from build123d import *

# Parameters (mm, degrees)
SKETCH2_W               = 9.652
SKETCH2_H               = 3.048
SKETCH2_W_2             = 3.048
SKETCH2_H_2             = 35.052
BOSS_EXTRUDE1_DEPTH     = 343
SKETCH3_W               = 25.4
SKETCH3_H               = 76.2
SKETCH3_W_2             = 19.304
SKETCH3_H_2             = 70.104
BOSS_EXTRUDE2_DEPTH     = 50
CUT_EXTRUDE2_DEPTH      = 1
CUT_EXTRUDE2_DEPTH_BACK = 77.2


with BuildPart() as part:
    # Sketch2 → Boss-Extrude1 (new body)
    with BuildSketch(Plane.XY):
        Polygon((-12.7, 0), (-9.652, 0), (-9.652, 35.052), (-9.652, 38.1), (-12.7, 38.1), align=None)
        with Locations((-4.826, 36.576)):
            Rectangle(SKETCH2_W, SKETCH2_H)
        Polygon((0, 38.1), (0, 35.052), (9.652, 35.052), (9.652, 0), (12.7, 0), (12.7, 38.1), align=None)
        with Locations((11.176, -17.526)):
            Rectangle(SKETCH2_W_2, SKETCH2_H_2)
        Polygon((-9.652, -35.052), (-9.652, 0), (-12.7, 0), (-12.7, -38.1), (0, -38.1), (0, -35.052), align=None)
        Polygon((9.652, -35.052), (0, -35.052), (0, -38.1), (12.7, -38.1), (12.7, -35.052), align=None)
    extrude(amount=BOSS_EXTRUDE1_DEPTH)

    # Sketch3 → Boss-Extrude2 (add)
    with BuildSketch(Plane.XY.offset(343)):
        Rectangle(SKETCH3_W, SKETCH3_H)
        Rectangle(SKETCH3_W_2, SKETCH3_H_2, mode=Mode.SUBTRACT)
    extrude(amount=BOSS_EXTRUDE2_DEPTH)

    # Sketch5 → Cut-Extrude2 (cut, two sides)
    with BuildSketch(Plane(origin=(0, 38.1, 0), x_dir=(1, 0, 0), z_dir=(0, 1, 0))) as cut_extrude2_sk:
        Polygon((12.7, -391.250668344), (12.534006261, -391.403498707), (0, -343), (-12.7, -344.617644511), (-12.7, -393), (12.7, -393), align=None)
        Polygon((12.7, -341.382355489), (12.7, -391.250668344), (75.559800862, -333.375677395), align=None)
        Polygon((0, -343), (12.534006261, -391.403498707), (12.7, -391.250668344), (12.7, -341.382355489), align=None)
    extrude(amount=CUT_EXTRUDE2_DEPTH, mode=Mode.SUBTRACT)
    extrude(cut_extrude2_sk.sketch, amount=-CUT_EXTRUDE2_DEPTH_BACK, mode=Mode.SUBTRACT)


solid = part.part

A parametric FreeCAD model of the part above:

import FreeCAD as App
import Part
import Sketcher
from FreeCAD import Vector
Q = App.Units.Quantity

doc = App.newDocument("Part")
body = doc.addObject("PartDesign::Body", "Body")

sketch1 = doc.addObject("Sketcher::SketchObject", "Sketch")
body.addObject(sketch1)
sketch1.AttachmentSupport = (doc.XY_Plane, [""])
sketch1.MapMode = "FlatFace"
sketch1.addGeometry([
    Part.LineSegment(Vector(13, 38, 0), Vector(-13, 38, 0)),
    Part.LineSegment(Vector(-13, 38, 0), Vector(-13, -38, 0)),
    Part.LineSegment(Vector(-13, -38, 0), Vector(13, -38, 0)),
    Part.LineSegment(Vector(13, -38, 0), Vector(13, 38, 0)),
    Part.LineSegment(Vector(-10, 35, 0), Vector(10, 35, 0)),
    Part.LineSegment(Vector(10, 35, 0), Vector(10, -35, 0)),
    Part.LineSegment(Vector(10, -35, 0), Vector(-10, -35, 0)),
    Part.LineSegment(Vector(-10, -35, 0), Vector(-10, 35, 0)),
], False)
sketch1.addConstraint([
    Sketcher.Constraint("Coincident", 0, 2, 1, 1),
    Sketcher.Constraint("Coincident", 1, 2, 2, 1),
    Sketcher.Constraint("Coincident", 2, 2, 3, 1),
    Sketcher.Constraint("Coincident", 3, 2, 0, 1),
    Sketcher.Constraint("Coincident", 4, 2, 5, 1),
    Sketcher.Constraint("Coincident", 5, 2, 6, 1),
    Sketcher.Constraint("Coincident", 6, 2, 7, 1),
    Sketcher.Constraint("Coincident", 7, 2, 4, 1),
    Sketcher.Constraint("Horizontal", 0),
    Sketcher.Constraint("Vertical", 1),
    Sketcher.Constraint("Horizontal", 2),
    Sketcher.Constraint("Vertical", 3),
    Sketcher.Constraint("Horizontal", 4),
    Sketcher.Constraint("Vertical", 5),
    Sketcher.Constraint("Horizontal", 6),
    Sketcher.Constraint("Vertical", 7),
    Sketcher.Constraint("Symmetric", 0, 2, 2, 2, -1, 1),
    Sketcher.Constraint("Symmetric", 4, 2, 6, 2, -1, 1),
    Sketcher.Constraint("DistanceX", 0, 2, 0, 1, Q("1 in")),
    Sketcher.Constraint("DistanceY", 1, 2, 1, 1, Q("3 in")),
    Sketcher.Constraint("DistanceX", 4, 1, 4, 2, Q("0.76 in")),
    Sketcher.Constraint("DistanceY", 5, 2, 5, 1, Q("2.76 in")),
])
pad1 = doc.addObject("PartDesign::Pad", "Pad")
body.addObject(pad1)
pad1.Profile = sketch1
pad1.Length = 343

sketch2 = doc.addObject("Sketcher::SketchObject", "Sketch001")
body.addObject(sketch2)
sketch2.AttachmentSupport = (doc.XY_Plane, [""])
sketch2.MapMode = "FlatFace"
sketch2.AttachmentOffset = App.Placement(Vector(0, 0, 343), App.Rotation())
sketch2.addGeometry([
    Part.LineSegment(Vector(-13, 38, 0), Vector(-13, -38, 0)),
    Part.LineSegment(Vector(-13, -38, 0), Vector(13, -38, 0)),
    Part.LineSegment(Vector(13, -38, 0), Vector(13, 38, 0)),
    Part.LineSegment(Vector(13, 38, 0), Vector(-13, 38, 0)),
    Part.LineSegment(Vector(10, -35, 0), Vector(-10, -35, 0)),
    Part.LineSegment(Vector(-10, -35, 0), Vector(-10, 35, 0)),
    Part.LineSegment(Vector(-10, 35, 0), Vector(10, 35, 0)),
    Part.LineSegment(Vector(10, 35, 0), Vector(10, -35, 0)),
], False)
sketch2.addConstraint([
    Sketcher.Constraint("Coincident", 0, 2, 1, 1),
    Sketcher.Constraint("Coincident", 1, 2, 2, 1),
    Sketcher.Constraint("Coincident", 2, 2, 3, 1),
    Sketcher.Constraint("Coincident", 3, 2, 0, 1),
    Sketcher.Constraint("Coincident", 4, 2, 5, 1),
    Sketcher.Constraint("Coincident", 5, 2, 6, 1),
    Sketcher.Constraint("Coincident", 6, 2, 7, 1),
    Sketcher.Constraint("Coincident", 7, 2, 4, 1),
    Sketcher.Constraint("Vertical", 0),
    Sketcher.Constraint("Horizontal", 1),
    Sketcher.Constraint("Vertical", 2),
    Sketcher.Constraint("Horizontal", 3),
    Sketcher.Constraint("Horizontal", 4),
    Sketcher.Constraint("Vertical", 5),
    Sketcher.Constraint("Horizontal", 6),
    Sketcher.Constraint("Vertical", 7),
    Sketcher.Constraint("Symmetric", 0, 2, 2, 2, -1, 1),
    Sketcher.Constraint("Symmetric", 4, 2, 6, 2, -1, 1),
    Sketcher.Constraint("DistanceX", 1, 1, 1, 2, Q("1 in")),
    Sketcher.Constraint("DistanceY", 0, 2, 0, 1, Q("3 in")),
    Sketcher.Constraint("DistanceX", 4, 2, 4, 1, Q("0.76 in")),
    Sketcher.Constraint("DistanceY", 5, 1, 5, 2, Q("2.76 in")),
])
pad2 = doc.addObject("PartDesign::Pad", "Pad001")
body.addObject(pad2)
pad2.Profile = sketch2
pad2.Length = 50

sketch3 = doc.addObject("Sketcher::SketchObject", "Sketch002")
body.addObject(sketch3)
sketch3.AttachmentSupport = (doc.XZ_Plane, [""])
sketch3.MapMode = "FlatFace"
sketch3.AttachmentOffset = App.Placement(Vector(0, 0, -1.5 * 25.4), App.Rotation())
sketch3.addGeometry([
    Part.LineSegment(Vector(-12.7, 344.6, 0), Vector(-12.7, 393, 0)),
    Part.LineSegment(Vector(-12.7, 393, 0), Vector(12.7, 393, 0)),
    Part.LineSegment(Vector(12.7, 393, 0), Vector(12.7, 391.3, 0)),
    Part.LineSegment(Vector(12.7, 391.3, 0), Vector(75.6, 333.4, 0)),
    Part.LineSegment(Vector(75.6, 333.4, 0), Vector(12.7, 341.4, 0)),
    Part.LineSegment(Vector(12.7, 341.4, 0), Vector(-12.7, 344.6, 0)),
], False)
sketch3.addConstraint([
    Sketcher.Constraint("Coincident", 0, 2, 1, 1),
    Sketcher.Constraint("Coincident", 1, 2, 2, 1),
    Sketcher.Constraint("Coincident", 2, 2, 3, 1),
    Sketcher.Constraint("Coincident", 3, 2, 4, 1),
    Sketcher.Constraint("Coincident", 4, 2, 5, 1),
    Sketcher.Constraint("Coincident", 5, 2, 0, 1),
    Sketcher.Constraint("Vertical", 0),
    Sketcher.Constraint("Horizontal", 1),
    Sketcher.Constraint("Vertical", 2),
    Sketcher.Constraint("Parallel", 4, 5),
    Sketcher.Constraint("Vertical", 2, 2, 4, 2),
    Sketcher.Constraint("DistanceX", 1, 1, 1, 2, Q("1 in")),
    Sketcher.Constraint("DistanceX", 0, 2, -1, 1, Q("0.5 in")),
    Sketcher.Constraint("DistanceY", 2, 2, 2, 1, 1.749332),
    Sketcher.Constraint("DistanceY", -1, 1, 0, 2, 393.0),
    Sketcher.Constraint("DistanceX", -1, 1, 3, 2, 75.559801),
    Sketcher.Constraint("Distance", 4, 63.367669),
    Sketcher.Constraint("DistanceY", 0, 1, 0, 2, 48.382355),
])
pocket1 = doc.addObject("PartDesign::Pocket", "Pocket")
body.addObject(pocket1)
pocket1.Profile = sketch3
pocket1.Type = "ThroughAll"
pocket1.Midplane = True

doc.recompute()
